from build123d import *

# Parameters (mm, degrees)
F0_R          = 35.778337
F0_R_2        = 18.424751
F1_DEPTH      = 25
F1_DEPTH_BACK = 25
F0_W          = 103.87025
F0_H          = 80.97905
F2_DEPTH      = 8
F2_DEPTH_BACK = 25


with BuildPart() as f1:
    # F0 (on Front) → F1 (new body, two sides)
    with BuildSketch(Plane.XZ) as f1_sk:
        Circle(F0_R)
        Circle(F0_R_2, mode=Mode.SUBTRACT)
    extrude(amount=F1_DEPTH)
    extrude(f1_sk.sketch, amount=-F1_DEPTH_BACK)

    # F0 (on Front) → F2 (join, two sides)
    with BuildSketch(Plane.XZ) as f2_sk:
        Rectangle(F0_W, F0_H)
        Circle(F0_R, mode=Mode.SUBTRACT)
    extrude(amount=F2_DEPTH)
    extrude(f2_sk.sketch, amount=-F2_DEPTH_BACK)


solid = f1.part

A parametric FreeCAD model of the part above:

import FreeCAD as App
import Part
import Sketcher

V = App.Vector

doc = App.newDocument("Part")
params = doc.addObject("Spreadsheet::Sheet", "Params")
for row, (alias, value) in enumerate([
    ("pad1_length", "25 mm"),
    ("pad1_length2", "25 mm"),
    ("pad2_length", "8 mm"),
    ("pad2_length2", "25 mm"),
], start=1):
    params.set(f"A{row}", alias)
    params.set(f"B{row}", "=" + value)
    params.setAlias(f"B{row}", alias)

body = doc.addObject("PartDesign::Body", "Body")

sketch1 = doc.addObject("Sketcher::SketchObject", "Sketch")
body.addObject(sketch1)
sketch1.AttachmentSupport = (doc.XZ_Plane, [""])
sketch1.MapMode = "FlatFace"
sketch1.addGeometry([
    Part.Circle(V(0, 0, 0), V(0, 0, 1), 35.778337),
    Part.Circle(V(0, 0, 0), V(0, 0, 1), 18.424751),
], False)
sketch1.addConstraint([
    Sketcher.Constraint("Coincident", 0, 3, -1, 1),
    Sketcher.Constraint("Coincident", 1, 3, -1, 1),
    Sketcher.Constraint("Diameter", 0, 71.556674),
    Sketcher.Constraint("Diameter", 1, 36.849502),
])
pad1 = doc.addObject("PartDesign::Pad", "Pad")
body.addObject(pad1)
pad1.Profile = sketch1
pad1.Type = "TwoLengths"
pad1.setExpression("Length", "Params.pad1_length")
pad1.setExpression("Length2", "Params.pad1_length2")

sketch2 = doc.addObject("Sketcher::SketchObject", "Sketch001")
body.addObject(sketch2)
sketch2.AttachmentSupport = (doc.XZ_Plane, [""])
sketch2.MapMode = "FlatFace"
sketch2.addGeometry([
    Part.LineSegment(V(-51.935125, 40.489525, 0), V(-51.935125, -40.489525, 0)),
    Part.LineSegment(V(-51.935125, -40.489525, 0), V(51.935125, -40.489525, 0)),
    Part.LineSegment(V(51.935125, -40.489525, 0), V(51.935125, 40.489525, 0)),
    Part.LineSegment(V(51.935125, 40.489525, 0), V(-51.935125, 40.489525, 0)),
    Part.Circle(V(0, 0, 0), V(0, 0, 1), 35.778337),
], False)
sketch2.addConstraint([
    Sketcher.Constraint("Coincident", 0, 2, 1, 1),
    Sketcher.Constraint("Coincident", 1, 2, 2, 1),
    Sketcher.Constraint("Coincident", 2, 2, 3, 1),
    Sketcher.Constraint("Coincident", 3, 2, 0, 1),
    Sketcher.Constraint("Vertical", 0),
    Sketcher.Constraint("Horizontal", 1),
    Sketcher.Constraint("Vertical", 2),
    Sketcher.Constraint("Horizontal", 3),
    Sketcher.Constraint("Coincident", 4, 3, -1, 1),
    Sketcher.Constraint("Symmetric", 0, 2, 2, 2, -1, 1),
    Sketcher.Constraint("Diameter", 4, 71.556674),
    Sketcher.Constraint("DistanceX", 1, 1, 1, 2, 103.87025),
    Sketcher.Constraint("DistanceY", 0, 2, 0, 1, 80.97905),
])
pad2 = doc.addObject("PartDesign::Pad", "Pad001")
body.addObject(pad2)
pad2.Profile = sketch2
pad2.Type = "TwoLengths"
pad2.setExpression("Length", "Params.pad2_length")
pad2.setExpression("Length2", "Params.pad2_length2")

doc.recompute()
